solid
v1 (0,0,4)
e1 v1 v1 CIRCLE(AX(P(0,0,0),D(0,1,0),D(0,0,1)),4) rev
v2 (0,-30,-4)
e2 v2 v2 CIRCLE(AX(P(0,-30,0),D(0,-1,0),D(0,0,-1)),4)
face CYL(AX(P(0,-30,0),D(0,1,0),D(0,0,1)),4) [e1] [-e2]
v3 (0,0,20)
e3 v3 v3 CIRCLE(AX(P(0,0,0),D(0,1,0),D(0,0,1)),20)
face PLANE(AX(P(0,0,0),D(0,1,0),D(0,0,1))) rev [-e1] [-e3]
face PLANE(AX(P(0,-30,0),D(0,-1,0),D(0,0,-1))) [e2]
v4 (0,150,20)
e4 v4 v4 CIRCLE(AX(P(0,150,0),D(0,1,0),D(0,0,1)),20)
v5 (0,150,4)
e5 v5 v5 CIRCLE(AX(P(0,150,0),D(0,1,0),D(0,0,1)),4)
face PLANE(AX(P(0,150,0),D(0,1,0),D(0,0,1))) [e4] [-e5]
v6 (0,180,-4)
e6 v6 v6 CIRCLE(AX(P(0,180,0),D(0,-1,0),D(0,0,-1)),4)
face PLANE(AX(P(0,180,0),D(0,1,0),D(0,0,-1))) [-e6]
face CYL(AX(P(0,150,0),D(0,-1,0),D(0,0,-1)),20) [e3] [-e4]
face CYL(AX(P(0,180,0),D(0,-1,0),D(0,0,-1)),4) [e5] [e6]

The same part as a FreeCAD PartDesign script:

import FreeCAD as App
import Part
import Sketcher
from FreeCAD import Vector

doc = App.newDocument("Part")
body = doc.addObject("PartDesign::Body", "Body")

# Sketch on XZ plane
sketch1 = body.newObject("Sketcher::SketchObject", "Sketch")
sketch1.AttachmentSupport = (doc.getObject("XZ_Plane"), [""])
sketch1.MapMode = "FlatFace"
sketch1.addGeometry(Part.Circle(Vector(0, 0, 0), Vector(0, 0, 1), 20), False)
sketch1.addConstraint([
    Sketcher.Constraint("Coincident", 0, 3, -1, 1),
    Sketcher.Constraint("Diameter", 0, 40.0),
])
pad1 = body.newObject("PartDesign::Pad", "Pad")
pad1.Profile = sketch1
pad1.Length = 150
pad1.Reversed = True

# Sketch on XZ plane
sketch2 = body.newObject("Sketcher::SketchObject", "Sketch001")
sketch2.AttachmentSupport = (doc.getObject("XZ_Plane"), [""])
sketch2.MapMode = "FlatFace"
sketch2.addGeometry(Part.Circle(Vector(0, 0, 0), Vector(0, 0, 1), 4), False)
sketch2.addConstraint([
    Sketcher.Constraint("Coincident", 0, 3, -1, 1),
    Sketcher.Constraint("Diameter", 0, 8.0),
])
pad2 = body.newObject("PartDesign::Pad", "Pad001")
pad2.Profile = sketch2
pad2.Length = 30
doc.recompute()

datumplane = body.newObject("PartDesign::Plane", "DatumPlane")
datumplane.AttachmentSupport = (doc.getObject("XZ_Plane"), [""])
datumplane.MapMode = "FlatFace"
datumplane.AttachmentOffset = App.Placement(Vector(0, 0, -75), App.Rotation())
mirrored = body.newObject("PartDesign::Mirrored", "Mirrored")
mirrored.Originals = [pad2]
mirrored.MirrorPlane = (datumplane, [""])
body.Tip = mirrored

doc.recompute()
